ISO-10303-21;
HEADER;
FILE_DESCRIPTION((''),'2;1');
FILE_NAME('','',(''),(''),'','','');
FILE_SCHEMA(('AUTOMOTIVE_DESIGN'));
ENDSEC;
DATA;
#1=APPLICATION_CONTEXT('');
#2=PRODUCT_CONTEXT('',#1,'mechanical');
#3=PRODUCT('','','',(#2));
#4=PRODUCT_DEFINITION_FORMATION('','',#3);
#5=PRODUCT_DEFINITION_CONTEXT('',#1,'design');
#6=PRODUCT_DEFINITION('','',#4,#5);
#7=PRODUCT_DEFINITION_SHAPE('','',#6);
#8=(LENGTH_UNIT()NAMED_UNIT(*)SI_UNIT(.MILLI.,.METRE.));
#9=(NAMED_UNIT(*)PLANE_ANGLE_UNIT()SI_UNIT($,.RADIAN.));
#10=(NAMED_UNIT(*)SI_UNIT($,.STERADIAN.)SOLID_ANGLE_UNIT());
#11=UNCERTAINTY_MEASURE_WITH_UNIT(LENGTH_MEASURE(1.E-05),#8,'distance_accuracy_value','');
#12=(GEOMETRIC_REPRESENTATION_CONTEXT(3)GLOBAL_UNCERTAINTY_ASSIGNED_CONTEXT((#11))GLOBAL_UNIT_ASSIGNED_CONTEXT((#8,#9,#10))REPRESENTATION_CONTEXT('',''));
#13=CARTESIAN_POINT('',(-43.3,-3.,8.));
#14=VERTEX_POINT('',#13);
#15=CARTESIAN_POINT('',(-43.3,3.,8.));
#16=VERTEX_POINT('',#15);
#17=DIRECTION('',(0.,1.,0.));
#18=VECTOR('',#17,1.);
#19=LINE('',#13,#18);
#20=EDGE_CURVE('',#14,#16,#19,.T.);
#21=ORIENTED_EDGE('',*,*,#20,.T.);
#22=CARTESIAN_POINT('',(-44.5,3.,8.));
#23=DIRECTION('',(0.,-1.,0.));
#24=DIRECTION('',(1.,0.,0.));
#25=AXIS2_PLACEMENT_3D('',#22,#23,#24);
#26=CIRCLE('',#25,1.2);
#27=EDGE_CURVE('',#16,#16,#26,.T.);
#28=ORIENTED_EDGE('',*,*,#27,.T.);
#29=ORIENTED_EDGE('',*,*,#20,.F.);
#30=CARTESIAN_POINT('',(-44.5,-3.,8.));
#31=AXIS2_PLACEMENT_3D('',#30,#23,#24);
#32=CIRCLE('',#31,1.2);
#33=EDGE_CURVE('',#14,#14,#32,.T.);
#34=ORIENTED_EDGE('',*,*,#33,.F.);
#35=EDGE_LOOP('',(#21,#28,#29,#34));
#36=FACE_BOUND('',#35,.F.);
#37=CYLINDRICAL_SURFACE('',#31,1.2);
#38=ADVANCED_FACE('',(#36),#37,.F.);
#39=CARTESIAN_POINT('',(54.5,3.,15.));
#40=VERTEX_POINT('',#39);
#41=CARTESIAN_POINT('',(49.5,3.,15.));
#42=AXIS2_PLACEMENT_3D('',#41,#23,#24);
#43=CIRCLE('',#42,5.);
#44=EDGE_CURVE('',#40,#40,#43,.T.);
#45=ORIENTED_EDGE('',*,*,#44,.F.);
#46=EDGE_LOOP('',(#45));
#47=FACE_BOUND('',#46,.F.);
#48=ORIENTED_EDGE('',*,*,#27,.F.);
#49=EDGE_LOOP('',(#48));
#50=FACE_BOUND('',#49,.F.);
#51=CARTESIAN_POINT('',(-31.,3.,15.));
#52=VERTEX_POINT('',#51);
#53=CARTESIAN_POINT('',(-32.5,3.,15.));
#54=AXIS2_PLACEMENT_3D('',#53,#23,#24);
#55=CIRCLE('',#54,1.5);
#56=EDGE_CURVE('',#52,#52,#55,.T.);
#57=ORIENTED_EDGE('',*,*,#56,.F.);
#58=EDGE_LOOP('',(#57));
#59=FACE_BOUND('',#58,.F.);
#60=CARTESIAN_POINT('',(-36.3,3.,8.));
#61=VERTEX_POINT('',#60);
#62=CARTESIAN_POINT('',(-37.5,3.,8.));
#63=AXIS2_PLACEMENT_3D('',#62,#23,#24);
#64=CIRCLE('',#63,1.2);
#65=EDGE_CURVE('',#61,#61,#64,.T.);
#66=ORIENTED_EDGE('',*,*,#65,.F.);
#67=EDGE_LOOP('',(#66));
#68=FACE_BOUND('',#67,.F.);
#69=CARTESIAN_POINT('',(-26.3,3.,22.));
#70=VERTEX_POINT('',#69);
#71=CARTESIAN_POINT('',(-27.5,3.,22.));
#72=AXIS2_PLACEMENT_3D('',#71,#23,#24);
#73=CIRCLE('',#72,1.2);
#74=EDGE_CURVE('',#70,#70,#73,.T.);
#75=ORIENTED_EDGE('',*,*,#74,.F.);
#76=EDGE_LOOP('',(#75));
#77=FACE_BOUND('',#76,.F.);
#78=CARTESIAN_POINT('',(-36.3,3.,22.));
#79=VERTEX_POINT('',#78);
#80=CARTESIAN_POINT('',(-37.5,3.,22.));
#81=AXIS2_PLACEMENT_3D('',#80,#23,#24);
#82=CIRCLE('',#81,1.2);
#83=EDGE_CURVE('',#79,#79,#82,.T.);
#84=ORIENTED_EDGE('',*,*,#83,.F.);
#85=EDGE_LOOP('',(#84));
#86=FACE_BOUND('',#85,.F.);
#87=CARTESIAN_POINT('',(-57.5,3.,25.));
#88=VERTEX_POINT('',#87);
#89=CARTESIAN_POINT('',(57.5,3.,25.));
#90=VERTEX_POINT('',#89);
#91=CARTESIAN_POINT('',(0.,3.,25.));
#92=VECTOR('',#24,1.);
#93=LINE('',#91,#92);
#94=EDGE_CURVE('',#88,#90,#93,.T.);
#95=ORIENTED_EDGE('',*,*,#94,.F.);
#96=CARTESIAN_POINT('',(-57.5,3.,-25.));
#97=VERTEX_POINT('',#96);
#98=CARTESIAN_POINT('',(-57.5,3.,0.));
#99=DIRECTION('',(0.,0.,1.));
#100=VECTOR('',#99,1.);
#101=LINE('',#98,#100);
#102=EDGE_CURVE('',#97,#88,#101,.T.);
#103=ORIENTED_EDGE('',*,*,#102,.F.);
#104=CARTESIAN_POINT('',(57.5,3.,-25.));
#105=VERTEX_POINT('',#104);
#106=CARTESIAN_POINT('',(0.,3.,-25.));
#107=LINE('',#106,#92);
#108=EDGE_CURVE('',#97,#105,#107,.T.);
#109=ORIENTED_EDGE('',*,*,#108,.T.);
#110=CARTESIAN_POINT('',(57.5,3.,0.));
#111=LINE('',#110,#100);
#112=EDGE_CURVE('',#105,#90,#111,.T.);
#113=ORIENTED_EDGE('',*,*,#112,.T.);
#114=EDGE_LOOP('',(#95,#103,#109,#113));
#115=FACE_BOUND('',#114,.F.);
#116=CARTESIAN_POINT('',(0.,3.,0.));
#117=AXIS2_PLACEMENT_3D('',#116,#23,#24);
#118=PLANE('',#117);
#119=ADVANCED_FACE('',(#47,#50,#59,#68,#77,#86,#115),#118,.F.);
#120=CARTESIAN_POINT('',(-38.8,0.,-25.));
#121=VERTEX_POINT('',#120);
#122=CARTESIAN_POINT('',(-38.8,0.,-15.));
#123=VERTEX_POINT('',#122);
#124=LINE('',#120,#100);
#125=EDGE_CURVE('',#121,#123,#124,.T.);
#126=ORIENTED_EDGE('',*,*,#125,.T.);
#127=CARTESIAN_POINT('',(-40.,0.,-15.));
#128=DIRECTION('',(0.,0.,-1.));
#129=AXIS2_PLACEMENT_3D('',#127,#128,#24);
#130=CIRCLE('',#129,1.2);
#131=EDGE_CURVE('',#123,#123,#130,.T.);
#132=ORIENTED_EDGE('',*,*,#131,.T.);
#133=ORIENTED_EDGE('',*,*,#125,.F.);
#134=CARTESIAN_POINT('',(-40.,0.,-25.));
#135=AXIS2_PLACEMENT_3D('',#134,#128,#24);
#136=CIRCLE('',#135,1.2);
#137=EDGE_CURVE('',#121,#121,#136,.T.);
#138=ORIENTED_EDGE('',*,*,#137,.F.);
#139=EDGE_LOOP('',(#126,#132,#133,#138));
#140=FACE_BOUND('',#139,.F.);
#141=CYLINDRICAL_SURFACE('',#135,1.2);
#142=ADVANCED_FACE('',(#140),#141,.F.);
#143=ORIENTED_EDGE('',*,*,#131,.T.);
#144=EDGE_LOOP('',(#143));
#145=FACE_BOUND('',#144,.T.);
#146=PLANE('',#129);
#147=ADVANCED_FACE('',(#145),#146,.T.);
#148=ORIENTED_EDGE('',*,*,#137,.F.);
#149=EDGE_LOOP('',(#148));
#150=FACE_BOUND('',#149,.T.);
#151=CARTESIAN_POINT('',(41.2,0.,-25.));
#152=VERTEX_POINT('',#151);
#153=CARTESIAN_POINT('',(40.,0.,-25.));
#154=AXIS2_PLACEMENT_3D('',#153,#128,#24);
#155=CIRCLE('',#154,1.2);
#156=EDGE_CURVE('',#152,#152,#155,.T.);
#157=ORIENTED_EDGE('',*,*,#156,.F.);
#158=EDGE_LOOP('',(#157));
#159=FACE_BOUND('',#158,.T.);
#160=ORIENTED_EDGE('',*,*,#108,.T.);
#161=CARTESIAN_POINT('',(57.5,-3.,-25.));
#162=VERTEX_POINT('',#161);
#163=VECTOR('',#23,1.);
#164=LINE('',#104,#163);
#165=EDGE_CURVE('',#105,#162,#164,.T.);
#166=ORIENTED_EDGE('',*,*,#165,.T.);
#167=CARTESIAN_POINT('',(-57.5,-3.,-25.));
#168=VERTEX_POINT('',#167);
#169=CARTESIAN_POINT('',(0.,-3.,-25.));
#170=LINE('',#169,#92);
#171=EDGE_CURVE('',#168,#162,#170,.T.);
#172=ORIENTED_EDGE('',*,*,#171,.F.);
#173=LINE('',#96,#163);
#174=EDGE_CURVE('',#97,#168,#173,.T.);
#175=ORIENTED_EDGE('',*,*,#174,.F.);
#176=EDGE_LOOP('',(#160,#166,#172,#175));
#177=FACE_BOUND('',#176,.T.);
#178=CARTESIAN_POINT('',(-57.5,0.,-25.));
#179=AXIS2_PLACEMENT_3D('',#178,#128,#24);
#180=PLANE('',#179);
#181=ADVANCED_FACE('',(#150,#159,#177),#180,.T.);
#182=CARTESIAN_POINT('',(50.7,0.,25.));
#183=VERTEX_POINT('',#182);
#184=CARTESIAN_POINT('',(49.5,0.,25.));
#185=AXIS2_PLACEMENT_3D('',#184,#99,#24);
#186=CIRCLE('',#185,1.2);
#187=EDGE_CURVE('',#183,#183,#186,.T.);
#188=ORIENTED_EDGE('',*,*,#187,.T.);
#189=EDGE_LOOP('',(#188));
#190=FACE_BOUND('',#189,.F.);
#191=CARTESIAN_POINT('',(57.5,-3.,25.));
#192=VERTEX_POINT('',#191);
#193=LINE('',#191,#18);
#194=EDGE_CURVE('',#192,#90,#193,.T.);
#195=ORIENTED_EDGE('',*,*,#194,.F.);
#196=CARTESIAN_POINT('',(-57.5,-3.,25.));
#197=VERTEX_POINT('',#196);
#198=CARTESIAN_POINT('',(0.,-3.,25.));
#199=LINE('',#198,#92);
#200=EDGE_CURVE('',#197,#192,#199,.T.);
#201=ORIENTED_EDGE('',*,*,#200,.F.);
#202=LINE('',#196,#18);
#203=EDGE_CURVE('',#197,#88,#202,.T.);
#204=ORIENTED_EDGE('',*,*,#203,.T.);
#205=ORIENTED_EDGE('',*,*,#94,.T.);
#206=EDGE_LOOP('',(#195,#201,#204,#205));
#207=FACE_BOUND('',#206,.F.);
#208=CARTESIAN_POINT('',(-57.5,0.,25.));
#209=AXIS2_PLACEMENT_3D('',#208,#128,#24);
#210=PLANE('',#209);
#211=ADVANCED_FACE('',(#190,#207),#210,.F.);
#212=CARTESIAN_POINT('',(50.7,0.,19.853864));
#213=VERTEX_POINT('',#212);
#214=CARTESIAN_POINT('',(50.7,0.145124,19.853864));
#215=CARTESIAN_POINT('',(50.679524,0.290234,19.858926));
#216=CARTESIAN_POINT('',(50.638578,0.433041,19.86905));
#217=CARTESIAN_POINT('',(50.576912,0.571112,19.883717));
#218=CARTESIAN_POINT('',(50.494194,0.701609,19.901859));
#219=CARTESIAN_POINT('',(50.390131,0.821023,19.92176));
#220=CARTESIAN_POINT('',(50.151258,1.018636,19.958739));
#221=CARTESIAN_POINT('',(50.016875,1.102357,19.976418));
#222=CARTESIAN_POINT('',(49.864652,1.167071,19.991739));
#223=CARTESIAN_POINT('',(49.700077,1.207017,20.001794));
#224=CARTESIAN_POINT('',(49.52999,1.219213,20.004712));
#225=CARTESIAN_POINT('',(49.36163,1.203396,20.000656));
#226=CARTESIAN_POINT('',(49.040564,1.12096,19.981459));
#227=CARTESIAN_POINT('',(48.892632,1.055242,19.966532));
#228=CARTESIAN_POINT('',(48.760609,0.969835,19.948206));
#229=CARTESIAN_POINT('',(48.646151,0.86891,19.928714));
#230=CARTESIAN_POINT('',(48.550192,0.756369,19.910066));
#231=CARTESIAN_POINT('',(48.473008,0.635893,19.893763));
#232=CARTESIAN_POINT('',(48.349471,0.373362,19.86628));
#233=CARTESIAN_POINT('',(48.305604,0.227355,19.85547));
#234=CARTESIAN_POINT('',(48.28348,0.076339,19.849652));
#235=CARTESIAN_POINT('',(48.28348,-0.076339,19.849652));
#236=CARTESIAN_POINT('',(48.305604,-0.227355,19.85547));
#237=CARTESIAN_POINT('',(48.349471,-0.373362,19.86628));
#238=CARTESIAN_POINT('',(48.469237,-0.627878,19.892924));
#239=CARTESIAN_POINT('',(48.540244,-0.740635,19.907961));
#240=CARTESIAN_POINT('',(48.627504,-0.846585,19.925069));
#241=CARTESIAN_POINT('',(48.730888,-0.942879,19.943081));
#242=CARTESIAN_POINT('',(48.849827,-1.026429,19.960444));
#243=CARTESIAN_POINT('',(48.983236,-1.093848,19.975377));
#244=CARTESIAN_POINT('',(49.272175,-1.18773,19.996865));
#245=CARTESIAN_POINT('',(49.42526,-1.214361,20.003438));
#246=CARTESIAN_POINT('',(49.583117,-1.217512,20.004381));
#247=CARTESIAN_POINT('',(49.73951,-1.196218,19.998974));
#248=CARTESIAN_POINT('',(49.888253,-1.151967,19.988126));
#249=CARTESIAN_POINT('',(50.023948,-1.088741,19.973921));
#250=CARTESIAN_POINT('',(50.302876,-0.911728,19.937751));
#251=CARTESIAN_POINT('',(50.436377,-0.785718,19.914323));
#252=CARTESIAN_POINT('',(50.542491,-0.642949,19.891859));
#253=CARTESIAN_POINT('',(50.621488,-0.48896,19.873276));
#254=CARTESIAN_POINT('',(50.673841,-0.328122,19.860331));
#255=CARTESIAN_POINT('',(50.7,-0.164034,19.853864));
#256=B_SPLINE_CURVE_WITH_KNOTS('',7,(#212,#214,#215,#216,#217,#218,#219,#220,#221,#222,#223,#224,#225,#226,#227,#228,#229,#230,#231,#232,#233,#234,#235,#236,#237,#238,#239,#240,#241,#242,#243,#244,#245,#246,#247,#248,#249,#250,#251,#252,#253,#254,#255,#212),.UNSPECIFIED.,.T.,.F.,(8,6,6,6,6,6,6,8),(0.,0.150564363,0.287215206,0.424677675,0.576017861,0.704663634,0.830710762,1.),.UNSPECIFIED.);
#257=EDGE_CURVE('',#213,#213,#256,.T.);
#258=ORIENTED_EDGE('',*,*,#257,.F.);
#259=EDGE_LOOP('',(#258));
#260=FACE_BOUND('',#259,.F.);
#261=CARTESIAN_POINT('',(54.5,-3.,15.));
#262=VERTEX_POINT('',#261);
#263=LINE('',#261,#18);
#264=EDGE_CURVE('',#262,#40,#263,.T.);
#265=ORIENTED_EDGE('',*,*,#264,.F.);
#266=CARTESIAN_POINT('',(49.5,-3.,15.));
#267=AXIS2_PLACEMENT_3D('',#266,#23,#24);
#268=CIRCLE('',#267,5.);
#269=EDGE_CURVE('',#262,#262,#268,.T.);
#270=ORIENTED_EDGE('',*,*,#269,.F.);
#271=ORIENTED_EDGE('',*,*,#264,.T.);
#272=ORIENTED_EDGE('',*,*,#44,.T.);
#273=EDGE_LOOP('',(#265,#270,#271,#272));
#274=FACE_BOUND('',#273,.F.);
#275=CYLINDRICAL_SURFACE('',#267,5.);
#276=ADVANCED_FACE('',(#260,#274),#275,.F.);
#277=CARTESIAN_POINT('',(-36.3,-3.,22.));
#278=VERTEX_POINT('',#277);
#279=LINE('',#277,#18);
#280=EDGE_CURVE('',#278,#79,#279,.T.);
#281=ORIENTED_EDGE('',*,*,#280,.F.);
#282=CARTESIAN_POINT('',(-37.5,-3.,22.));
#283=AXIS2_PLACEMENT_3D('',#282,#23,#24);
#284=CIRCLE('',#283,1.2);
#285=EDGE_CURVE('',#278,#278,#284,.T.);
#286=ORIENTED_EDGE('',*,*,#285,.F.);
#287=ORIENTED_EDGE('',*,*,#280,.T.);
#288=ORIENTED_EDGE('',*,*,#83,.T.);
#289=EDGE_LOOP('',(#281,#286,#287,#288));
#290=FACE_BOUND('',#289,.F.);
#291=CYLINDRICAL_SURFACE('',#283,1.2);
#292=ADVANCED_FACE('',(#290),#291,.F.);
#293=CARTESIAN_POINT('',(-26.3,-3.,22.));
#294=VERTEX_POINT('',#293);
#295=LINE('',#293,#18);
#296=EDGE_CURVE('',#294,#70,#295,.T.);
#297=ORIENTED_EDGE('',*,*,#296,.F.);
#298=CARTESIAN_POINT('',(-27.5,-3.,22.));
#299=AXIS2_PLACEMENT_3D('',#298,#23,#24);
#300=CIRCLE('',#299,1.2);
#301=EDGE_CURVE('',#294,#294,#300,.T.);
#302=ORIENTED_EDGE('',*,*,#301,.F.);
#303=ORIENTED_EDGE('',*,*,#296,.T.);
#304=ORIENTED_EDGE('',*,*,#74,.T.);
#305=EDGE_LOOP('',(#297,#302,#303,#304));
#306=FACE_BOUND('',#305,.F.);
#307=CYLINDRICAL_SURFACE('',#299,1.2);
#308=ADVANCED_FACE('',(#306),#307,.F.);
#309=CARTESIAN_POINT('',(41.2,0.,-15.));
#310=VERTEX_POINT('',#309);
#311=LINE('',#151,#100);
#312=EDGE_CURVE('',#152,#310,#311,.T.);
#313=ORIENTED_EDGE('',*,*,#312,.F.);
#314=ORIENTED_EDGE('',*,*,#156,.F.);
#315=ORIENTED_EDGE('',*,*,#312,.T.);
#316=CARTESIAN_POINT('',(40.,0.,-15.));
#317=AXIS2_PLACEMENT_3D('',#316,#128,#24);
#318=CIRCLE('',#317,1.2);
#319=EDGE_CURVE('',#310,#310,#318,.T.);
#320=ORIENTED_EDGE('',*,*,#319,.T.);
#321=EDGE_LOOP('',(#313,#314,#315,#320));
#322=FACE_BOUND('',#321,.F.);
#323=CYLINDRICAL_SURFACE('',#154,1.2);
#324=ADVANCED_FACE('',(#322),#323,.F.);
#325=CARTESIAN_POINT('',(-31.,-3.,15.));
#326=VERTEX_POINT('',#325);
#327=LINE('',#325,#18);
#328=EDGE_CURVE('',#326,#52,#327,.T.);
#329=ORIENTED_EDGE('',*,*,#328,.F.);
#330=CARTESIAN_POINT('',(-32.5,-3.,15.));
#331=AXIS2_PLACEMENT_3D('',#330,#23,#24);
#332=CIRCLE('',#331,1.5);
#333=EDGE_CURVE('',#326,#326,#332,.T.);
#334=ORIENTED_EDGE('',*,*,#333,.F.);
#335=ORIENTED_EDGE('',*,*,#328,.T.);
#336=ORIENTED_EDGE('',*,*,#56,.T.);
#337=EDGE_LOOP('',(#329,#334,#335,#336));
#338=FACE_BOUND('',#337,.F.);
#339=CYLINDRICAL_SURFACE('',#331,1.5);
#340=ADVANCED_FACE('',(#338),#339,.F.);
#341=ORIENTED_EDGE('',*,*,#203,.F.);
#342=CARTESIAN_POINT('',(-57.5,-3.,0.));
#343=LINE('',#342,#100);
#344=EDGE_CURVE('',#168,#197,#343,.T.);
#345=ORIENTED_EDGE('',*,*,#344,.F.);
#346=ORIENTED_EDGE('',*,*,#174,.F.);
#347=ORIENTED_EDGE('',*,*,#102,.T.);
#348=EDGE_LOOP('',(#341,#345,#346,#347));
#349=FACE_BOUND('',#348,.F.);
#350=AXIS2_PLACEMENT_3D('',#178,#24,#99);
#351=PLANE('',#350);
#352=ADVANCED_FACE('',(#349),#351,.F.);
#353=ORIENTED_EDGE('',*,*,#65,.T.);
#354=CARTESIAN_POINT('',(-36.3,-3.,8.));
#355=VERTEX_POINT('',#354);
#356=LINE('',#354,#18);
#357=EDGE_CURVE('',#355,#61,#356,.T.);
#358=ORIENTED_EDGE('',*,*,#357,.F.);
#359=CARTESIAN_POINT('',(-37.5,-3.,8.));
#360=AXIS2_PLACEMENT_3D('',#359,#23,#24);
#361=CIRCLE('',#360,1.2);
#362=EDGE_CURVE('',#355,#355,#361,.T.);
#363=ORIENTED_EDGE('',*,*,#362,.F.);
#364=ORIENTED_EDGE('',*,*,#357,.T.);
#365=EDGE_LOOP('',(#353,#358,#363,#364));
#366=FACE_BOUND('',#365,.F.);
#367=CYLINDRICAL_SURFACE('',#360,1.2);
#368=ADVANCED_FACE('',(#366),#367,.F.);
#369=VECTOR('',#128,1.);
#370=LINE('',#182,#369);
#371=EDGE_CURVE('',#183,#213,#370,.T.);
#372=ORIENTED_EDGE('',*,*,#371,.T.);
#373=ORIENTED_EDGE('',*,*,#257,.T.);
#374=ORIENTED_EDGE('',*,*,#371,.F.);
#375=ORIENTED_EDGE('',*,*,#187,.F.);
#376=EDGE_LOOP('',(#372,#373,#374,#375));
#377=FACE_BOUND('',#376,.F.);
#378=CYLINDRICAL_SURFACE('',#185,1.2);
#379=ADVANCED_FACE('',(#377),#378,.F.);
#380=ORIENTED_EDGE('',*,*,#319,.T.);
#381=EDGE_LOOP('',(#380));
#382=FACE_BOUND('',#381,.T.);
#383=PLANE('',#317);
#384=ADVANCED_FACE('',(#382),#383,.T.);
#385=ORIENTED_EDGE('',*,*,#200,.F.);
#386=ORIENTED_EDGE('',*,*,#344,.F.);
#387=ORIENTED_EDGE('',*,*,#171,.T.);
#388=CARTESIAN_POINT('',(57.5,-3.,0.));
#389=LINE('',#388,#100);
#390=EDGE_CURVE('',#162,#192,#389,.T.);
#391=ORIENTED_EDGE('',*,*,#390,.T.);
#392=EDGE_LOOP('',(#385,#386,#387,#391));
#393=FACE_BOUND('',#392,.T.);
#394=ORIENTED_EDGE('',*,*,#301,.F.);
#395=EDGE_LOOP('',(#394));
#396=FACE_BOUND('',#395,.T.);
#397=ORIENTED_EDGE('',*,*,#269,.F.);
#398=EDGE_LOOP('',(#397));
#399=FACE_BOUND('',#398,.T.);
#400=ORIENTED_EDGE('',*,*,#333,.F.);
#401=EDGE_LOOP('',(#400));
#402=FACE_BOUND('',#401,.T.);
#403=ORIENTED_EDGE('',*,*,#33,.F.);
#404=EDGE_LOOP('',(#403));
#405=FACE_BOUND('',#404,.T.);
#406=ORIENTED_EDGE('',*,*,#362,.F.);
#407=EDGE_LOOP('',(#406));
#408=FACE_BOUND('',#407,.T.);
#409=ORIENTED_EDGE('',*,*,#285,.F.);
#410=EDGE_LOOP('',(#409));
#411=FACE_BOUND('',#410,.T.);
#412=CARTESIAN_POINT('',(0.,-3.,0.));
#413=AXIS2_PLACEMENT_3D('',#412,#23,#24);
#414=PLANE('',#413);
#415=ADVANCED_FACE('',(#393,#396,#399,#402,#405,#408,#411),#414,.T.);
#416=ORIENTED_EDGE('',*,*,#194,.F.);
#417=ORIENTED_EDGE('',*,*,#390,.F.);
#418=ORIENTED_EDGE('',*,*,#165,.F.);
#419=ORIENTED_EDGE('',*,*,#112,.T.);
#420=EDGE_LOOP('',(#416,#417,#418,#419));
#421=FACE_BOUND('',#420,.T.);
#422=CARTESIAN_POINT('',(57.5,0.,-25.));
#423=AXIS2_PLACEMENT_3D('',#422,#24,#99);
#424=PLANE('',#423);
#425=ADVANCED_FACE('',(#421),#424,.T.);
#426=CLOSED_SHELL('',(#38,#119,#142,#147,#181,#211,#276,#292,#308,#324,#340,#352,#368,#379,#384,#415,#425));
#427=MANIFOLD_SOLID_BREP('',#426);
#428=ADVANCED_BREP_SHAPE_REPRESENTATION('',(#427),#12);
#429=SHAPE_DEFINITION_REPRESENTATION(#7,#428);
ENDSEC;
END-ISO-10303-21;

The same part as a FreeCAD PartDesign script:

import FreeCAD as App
import Part
import Sketcher

V = App.Vector
Q = App.Units.Quantity

doc = App.newDocument("Part")
body = doc.addObject("PartDesign::Body", "Body")

sketch1 = body.newObject("Sketcher::SketchObject", "Sketch")
sketch1.AttachmentSupport = (doc.getObject("XZ_Plane"), [""])
sketch1.MapMode = "FlatFace"
sketch1.addGeometry([
    Part.LineSegment(V(-58, 25, 0), V(-58, -25, 0)),
    Part.LineSegment(V(-58, -25, 0), V(58, -25, 0)),
    Part.LineSegment(V(58, -25, 0), V(58, 25, 0)),
    Part.LineSegment(V(58, 25, 0), V(-58, 25, 0)),
], False)
sketch1.addConstraint([
    Sketcher.Constraint("Coincident", 0, 2, 1, 1),
    Sketcher.Constraint("Coincident", 1, 2, 2, 1),
    Sketcher.Constraint("Coincident", 2, 2, 3, 1),
    Sketcher.Constraint("Coincident", 3, 2, 0, 1),
    Sketcher.Constraint("Vertical", 0),
    Sketcher.Constraint("Horizontal", 1),
    Sketcher.Constraint("Vertical", 2),
    Sketcher.Constraint("Horizontal", 3),
    Sketcher.Constraint("Symmetric", 0, 2, 2, 2, -1, 1),
    Sketcher.Constraint("DistanceX", 1, 1, 1, 2, Q("115 mm")),
    Sketcher.Constraint("DistanceY", 0, 2, 0, 1, Q("50 mm")),
])
pad1 = body.newObject("PartDesign::Pad", "Pad")
pad1.Profile = sketch1
pad1.Type = "TwoLengths"
pad1.Length = 3
pad1.Length2 = 3

sketch2 = body.newObject("Sketcher::SketchObject", "Sketch001")
sketch2.AttachmentSupport = (doc.getObject("XZ_Plane"), [""])
sketch2.MapMode = "FlatFace"
sketch2.AttachmentOffset = App.Placement(V(0, 0, 3), App.Rotation())
sketch2.addGeometry([
    Part.Circle(V(49.5, 15, 0), V(0, 0, 1), 5),
    Part.Circle(V(-37.5, 22, 0), V(0, 0, 1), 1.2),
    Part.Circle(V(-27.5, 22, 0), V(0, 0, 1), 1.2),
    Part.Circle(V(-32.5, 15, 0), V(0, 0, 1), 1.5),
    Part.Circle(V(-37.5, 8, 0), V(0, 0, 1), 1.2),
    Part.Circle(V(-44.5, 8, 0), V(0, 0, 1), 1.2),
], False)
sketch2.addConstraint([
    Sketcher.Constraint("Equal", 1, 2),
    Sketcher.Constraint("Equal", 2, 4),
    Sketcher.Constraint("Equal", 4, 5),
    Sketcher.Constraint("Horizontal", 1, 3, 2, 3),
    Sketcher.Constraint("Horizontal", 0, 3, 3, 3),
    Sketcher.Constraint("Horizontal", 4, 3, 5, 3),
    Sketcher.Constraint("Vertical", 1, 3, 4, 3),
    Sketcher.Constraint("Diameter", 0, Q("10 mm")),
    Sketcher.Constraint("Diameter", 3, Q("3 mm")),
    Sketcher.Constraint("Diameter", 1, Q("2.4 mm")),
    Sketcher.Constraint("DistanceY", -1, 1, 0, 3, Q("15 mm")),
    Sketcher.Constraint("DistanceY", -1, 1, 1, 3, Q("22 mm")),
    Sketcher.Constraint("DistanceY", -1, 1, 4, 3, Q("8 mm")),
    Sketcher.Constraint("DistanceX", 1, 3, 0, 3, Q("87 mm")),
    Sketcher.Constraint("DistanceX", 1, 3, 2, 3, Q("10 mm")),
    Sketcher.Constraint("DistanceX", 1, 3, 3, 3, Q("5 mm")),
    Sketcher.Constraint("DistanceX", 5, 3, 4, 3, Q("7 mm")),
    Sketcher.Constraint("DistanceX", -1, 1, 0, 3, Q("49.5 mm")),
])
pocket1 = body.newObject("PartDesign::Pocket", "Pocket")
pocket1.Profile = sketch2
pocket1.Type = "ThroughAll"

sketch3 = body.newObject("Sketcher::SketchObject", "Sketch002")
sketch3.AttachmentSupport = (doc.getObject("XY_Plane"), [""])
sketch3.MapMode = "FlatFace"
sketch3.AttachmentOffset = App.Placement(V(0, 0, 25), App.Rotation())
sketch3.addGeometry(Part.Circle(V(49.5, 0, 0), V(0, 0, 1), 1.2), False)
sketch3.addConstraint([
    Sketcher.Constraint("PointOnObject", 0, 3, -1),
    Sketcher.Constraint("Diameter", 0, Q("2.4 mm")),
    Sketcher.Constraint("DistanceX", -1, 1, 0, 3, Q("49.5 mm")),
])
pocket2 = body.newObject("PartDesign::Pocket", "Pocket001")
pocket2.Profile = sketch3
pocket2.Length = 5.147136

sketch4 = body.newObject("Sketcher::SketchObject", "Sketch003")
sketch4.AttachmentSupport = (doc.getObject("XY_Plane"), [""])
sketch4.MapMode = "FlatFace"
sketch4.AttachmentOffset = App.Placement(V(0, 0, -25), App.Rotation())
sketch4.addGeometry([
    Part.Circle(V(-40, 0, 0), V(0, 0, 1), 1.2),
    Part.Circle(V(40, 0, 0), V(0, 0, 1), 1.2),
], False)
sketch4.addConstraint([
    Sketcher.Constraint("Equal", 0, 1),
    Sketcher.Constraint("Symmetric", 0, 3, 1, 3, -1, 1),
    Sketcher.Constraint("PointOnObject", 0, 3, -1),
    Sketcher.Constraint("Diameter", 0, Q("2.4 mm")),
    Sketcher.Constraint("DistanceX", 0, 3, -1, 1, Q("40 mm")),
])
pocket3 = body.newObject("PartDesign::Pocket", "Pocket002")
pocket3.Profile = sketch4
pocket3.Length = 10
pocket3.Reversed = True

doc.recompute()
